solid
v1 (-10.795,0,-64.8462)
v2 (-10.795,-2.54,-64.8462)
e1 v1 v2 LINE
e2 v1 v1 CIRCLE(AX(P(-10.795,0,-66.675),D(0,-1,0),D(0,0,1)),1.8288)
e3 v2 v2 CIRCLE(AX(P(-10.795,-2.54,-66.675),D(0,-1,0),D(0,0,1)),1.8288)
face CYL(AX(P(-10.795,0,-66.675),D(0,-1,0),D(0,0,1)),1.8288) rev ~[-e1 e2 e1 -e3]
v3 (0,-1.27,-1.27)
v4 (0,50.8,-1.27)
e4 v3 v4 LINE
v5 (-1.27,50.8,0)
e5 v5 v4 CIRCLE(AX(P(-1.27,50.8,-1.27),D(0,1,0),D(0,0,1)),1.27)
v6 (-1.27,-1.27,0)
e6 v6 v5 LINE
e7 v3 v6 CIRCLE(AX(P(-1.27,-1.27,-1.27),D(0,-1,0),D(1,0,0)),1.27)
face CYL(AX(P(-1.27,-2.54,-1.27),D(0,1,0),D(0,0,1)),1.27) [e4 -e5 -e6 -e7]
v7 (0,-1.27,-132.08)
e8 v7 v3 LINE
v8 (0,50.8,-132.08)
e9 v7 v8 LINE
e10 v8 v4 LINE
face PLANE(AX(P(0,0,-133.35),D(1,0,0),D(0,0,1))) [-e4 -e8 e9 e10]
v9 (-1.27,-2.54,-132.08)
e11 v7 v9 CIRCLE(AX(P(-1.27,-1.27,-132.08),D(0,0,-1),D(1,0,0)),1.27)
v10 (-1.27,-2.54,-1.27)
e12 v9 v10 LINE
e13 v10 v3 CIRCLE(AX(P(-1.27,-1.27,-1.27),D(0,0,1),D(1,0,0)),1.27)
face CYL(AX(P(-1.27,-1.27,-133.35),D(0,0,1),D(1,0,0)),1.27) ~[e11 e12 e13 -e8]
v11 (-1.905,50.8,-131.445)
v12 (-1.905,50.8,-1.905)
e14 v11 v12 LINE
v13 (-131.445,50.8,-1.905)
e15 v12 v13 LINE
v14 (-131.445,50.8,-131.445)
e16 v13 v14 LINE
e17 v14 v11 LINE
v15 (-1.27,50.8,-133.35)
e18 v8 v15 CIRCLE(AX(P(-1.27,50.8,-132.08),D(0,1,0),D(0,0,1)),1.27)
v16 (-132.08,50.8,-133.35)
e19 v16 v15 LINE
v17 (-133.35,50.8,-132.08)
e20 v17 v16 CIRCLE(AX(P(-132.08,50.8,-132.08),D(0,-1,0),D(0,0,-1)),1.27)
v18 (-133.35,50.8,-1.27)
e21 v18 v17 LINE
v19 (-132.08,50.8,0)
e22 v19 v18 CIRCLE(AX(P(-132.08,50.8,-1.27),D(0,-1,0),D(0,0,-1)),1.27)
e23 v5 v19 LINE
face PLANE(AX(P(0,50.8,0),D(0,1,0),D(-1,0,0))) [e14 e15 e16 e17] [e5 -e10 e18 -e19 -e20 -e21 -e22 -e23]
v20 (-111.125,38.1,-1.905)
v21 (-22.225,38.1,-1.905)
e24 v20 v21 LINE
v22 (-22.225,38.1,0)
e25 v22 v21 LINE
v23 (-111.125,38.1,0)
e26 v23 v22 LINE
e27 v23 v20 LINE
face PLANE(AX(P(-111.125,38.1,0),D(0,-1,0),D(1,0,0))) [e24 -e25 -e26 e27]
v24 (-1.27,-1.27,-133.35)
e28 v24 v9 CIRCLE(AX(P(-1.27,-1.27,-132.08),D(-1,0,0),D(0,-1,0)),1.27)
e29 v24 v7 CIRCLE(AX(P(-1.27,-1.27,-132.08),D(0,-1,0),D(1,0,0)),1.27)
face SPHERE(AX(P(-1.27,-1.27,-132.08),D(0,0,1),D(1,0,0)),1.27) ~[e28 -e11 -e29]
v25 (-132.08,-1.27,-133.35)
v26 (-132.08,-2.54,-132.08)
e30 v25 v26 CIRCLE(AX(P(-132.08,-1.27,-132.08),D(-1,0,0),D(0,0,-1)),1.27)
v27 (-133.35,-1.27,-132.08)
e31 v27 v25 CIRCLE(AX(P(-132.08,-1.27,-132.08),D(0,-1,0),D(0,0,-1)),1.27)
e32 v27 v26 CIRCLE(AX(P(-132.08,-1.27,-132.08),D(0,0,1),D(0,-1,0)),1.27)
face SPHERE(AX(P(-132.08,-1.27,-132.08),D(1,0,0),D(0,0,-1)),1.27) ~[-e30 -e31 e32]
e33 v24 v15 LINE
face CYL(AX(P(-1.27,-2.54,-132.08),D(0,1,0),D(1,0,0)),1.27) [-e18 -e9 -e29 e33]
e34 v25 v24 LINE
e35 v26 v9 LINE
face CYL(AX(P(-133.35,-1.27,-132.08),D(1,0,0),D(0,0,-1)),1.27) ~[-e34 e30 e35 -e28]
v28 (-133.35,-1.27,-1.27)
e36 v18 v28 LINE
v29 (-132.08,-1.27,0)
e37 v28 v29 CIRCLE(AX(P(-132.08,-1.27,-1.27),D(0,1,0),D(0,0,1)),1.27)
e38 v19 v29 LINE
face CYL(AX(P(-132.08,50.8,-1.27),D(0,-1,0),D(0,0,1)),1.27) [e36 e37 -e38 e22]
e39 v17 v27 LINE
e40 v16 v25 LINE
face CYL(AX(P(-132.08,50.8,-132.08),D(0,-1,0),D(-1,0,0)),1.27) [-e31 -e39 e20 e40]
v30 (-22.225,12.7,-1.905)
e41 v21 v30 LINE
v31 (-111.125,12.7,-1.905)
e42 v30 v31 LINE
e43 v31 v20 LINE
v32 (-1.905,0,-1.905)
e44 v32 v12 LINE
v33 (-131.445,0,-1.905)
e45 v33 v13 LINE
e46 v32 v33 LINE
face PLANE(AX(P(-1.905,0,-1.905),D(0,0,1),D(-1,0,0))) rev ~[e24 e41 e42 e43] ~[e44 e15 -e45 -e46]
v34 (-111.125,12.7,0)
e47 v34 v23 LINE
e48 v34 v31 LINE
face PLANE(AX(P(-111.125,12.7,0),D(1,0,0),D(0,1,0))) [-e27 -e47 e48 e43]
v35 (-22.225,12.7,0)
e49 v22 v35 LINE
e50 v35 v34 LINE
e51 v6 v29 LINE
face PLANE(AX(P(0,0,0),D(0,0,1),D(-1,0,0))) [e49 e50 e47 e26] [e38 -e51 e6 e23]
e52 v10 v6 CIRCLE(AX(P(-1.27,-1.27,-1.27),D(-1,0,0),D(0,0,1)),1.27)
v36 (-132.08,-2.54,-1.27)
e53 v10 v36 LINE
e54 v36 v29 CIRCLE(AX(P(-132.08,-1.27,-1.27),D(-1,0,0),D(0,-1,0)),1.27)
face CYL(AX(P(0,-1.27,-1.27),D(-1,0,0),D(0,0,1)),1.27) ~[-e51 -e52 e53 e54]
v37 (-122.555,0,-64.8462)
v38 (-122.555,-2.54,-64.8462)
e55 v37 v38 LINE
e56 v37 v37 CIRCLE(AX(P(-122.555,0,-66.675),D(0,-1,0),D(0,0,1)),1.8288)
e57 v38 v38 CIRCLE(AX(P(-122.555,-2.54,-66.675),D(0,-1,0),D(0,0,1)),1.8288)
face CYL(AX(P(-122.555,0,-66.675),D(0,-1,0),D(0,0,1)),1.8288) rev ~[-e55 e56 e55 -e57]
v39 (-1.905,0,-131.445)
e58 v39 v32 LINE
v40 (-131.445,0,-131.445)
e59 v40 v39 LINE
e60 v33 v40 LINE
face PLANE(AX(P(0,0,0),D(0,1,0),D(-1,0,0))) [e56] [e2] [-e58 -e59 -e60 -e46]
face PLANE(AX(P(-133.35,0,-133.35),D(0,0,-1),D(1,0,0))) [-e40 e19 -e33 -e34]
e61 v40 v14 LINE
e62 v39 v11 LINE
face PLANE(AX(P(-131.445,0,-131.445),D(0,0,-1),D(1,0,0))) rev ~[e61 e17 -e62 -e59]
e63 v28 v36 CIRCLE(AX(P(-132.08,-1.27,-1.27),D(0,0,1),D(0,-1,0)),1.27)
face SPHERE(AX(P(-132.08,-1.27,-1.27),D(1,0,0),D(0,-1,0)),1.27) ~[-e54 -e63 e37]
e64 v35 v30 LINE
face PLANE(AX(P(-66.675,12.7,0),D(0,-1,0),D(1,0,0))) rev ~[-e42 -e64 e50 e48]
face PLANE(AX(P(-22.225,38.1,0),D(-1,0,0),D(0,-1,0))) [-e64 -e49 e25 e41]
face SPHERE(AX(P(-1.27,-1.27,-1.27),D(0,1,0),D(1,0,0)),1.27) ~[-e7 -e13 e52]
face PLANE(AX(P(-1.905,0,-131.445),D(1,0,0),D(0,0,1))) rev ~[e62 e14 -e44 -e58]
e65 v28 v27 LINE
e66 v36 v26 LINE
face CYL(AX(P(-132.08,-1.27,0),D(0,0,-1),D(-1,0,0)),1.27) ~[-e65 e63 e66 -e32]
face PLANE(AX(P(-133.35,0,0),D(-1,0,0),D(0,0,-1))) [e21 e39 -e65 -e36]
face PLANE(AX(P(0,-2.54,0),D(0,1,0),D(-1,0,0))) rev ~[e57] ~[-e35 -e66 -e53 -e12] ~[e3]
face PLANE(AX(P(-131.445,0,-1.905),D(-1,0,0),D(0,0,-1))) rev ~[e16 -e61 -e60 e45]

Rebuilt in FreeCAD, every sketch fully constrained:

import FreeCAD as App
import Part
import Sketcher
from FreeCAD import Vector
Q = App.Units.Quantity


def edges_at(feature, points):
    """Names of the edges that pass closest to the given points."""
    edges = feature.Shape.Edges
    near = lambda p: min(range(len(edges)), key=lambda i: edges[i].distToShape(Part.Vertex(*p))[0])
    return sorted({f"Edge{near(p) + 1}" for p in points})

doc = App.newDocument("Part")
body = doc.addObject("PartDesign::Body", "Body")

sketch1 = body.newObject("Sketcher::SketchObject", "Sketch")
sketch1.AttachmentSupport = (doc.getObject("XZ_Plane"), [""])
sketch1.MapMode = "FlatFace"
sketch1.addGeometry(Part.LineSegment(Vector(-133, 0, 0), Vector(0, 0, 0)), False)
sketch1.addGeometry(Part.LineSegment(Vector(0, 0, 0), Vector(0, -133, 0)), False)
sketch1.addGeometry(Part.LineSegment(Vector(0, -133, 0), Vector(-133, -133, 0)), False)
sketch1.addGeometry(Part.LineSegment(Vector(-133, -133, 0), Vector(-133, 0, 0)), False)
sketch1.addGeometry(Part.LineSegment(Vector(-131, -2, 0), Vector(-131, -131, 0)), False)
sketch1.addGeometry(Part.LineSegment(Vector(-131, -131, 0), Vector(-2, -131, 0)), False)
sketch1.addGeometry(Part.LineSegment(Vector(-2, -131, 0), Vector(-2, -2, 0)), False)
sketch1.addGeometry(Part.LineSegment(Vector(-2, -2, 0), Vector(-131, -2, 0)), False)
sketch1.addConstraint(Sketcher.Constraint("Coincident", 0, 2, 1, 1))
sketch1.addConstraint(Sketcher.Constraint("Coincident", 1, 2, 2, 1))
sketch1.addConstraint(Sketcher.Constraint("Coincident", 2, 2, 3, 1))
sketch1.addConstraint(Sketcher.Constraint("Coincident", 3, 2, 0, 1))
sketch1.addConstraint(Sketcher.Constraint("Coincident", 4, 2, 5, 1))
sketch1.addConstraint(Sketcher.Constraint("Coincident", 5, 2, 6, 1))
sketch1.addConstraint(Sketcher.Constraint("Coincident", 6, 2, 7, 1))
sketch1.addConstraint(Sketcher.Constraint("Coincident", 7, 2, 4, 1))
sketch1.addConstraint(Sketcher.Constraint("Horizontal", 0))
sketch1.addConstraint(Sketcher.Constraint("Vertical", 1))
sketch1.addConstraint(Sketcher.Constraint("Horizontal", 2))
sketch1.addConstraint(Sketcher.Constraint("Vertical", 3))
sketch1.addConstraint(Sketcher.Constraint("Vertical", 4))
sketch1.addConstraint(Sketcher.Constraint("Horizontal", 5))
sketch1.addConstraint(Sketcher.Constraint("Vertical", 6))
sketch1.addConstraint(Sketcher.Constraint("Horizontal", 7))
sketch1.addConstraint(Sketcher.Constraint("Coincident", 0, 2, -1, 1))
sketch1.addConstraint(Sketcher.Constraint("Equal", 2, 1))
sketch1.addConstraint(Sketcher.Constraint("Equal", 7, 4))
sketch1.addConstraint(Sketcher.Constraint("DistanceX", 5, 1, 5, 2, Q("5.1 in")))
sketch1.addConstraint(Sketcher.Constraint("DistanceX", 0, 1, 0, 2, Q("5.25 in")))
sketch1.addConstraint(Sketcher.Constraint("DistanceX", 4, 2, -1, 1, Q("5.175 in")))
sketch1.addConstraint(Sketcher.Constraint("DistanceY", 4, 2, -1, 1, Q("5.175 in")))
pad1 = body.newObject("PartDesign::Pad", "Pad")
pad1.Profile = sketch1
pad1.Length = Q("2 in")
pad1.Reversed = True

sketch2 = body.newObject("Sketcher::SketchObject", "Sketch001")
sketch2.AttachmentSupport = (doc.getObject("XZ_Plane"), [""])
sketch2.MapMode = "FlatFace"
sketch2.addGeometry(Part.LineSegment(Vector(-133, 0, 0), Vector(0, 0, 0)), False)
sketch2.addGeometry(Part.LineSegment(Vector(0, 0, 0), Vector(0, -133, 0)), False)
sketch2.addGeometry(Part.LineSegment(Vector(0, -133, 0), Vector(-133, -133, 0)), False)
sketch2.addGeometry(Part.LineSegment(Vector(-133, -133, 0), Vector(-133, 0, 0)), False)
sketch2.addConstraint(Sketcher.Constraint("Coincident", 0, 2, 1, 1))
sketch2.addConstraint(Sketcher.Constraint("Coincident", 1, 2, 2, 1))
sketch2.addConstraint(Sketcher.Constraint("Coincident", 2, 2, 3, 1))
sketch2.addConstraint(Sketcher.Constraint("Coincident", 3, 2, 0, 1))
sketch2.addConstraint(Sketcher.Constraint("Horizontal", 0))
sketch2.addConstraint(Sketcher.Constraint("Vertical", 1))
sketch2.addConstraint(Sketcher.Constraint("Horizontal", 2))
sketch2.addConstraint(Sketcher.Constraint("Vertical", 3))
sketch2.addConstraint(Sketcher.Constraint("Coincident", 0, 2, -1, 1))
sketch2.addConstraint(Sketcher.Constraint("Equal", 2, 1))
sketch2.addConstraint(Sketcher.Constraint("DistanceX", 0, 1, 0, 2, Q("5.25 in")))
pad2 = body.newObject("PartDesign::Pad", "Pad001")
pad2.Profile = sketch2
pad2.Length = Q("0.1 in")
doc.recompute()

fillet = body.newObject("PartDesign::Fillet", "Fillet")
fillet.Base = (pad2, edges_at(pad2, [
    (0, 24.13, 0),
    (0, -2.54, -66.675),
    (-66.675, -2.54, 0),
    (0, 24.13, -133.35),
    (-66.675, -2.54, -133.35),
    (-133.35, 24.13, -133.35),
    (-133.35, -2.54, -66.675),
    (-133.35, 24.13, 0),
]))
fillet.Radius = Q("0.05 in")

sketch3 = body.newObject("Sketcher::SketchObject", "Sketch002")
sketch3.AttachmentSupport = (doc.getObject("XZ_Plane"), [""])
sketch3.MapMode = "FlatFace"
sketch3.addGeometry(Part.Circle(Vector(-10.8, -66.7, 0), Vector(0, 0, 1), 1.8), False)
sketch3.addGeometry(Part.Circle(Vector(-122.6, -66.7, 0), Vector(0, 0, 1), 1.8), False)
sketch3.addConstraint(Sketcher.Constraint("Equal", 0, 1))
sketch3.addConstraint(Sketcher.Constraint("Horizontal", 0, 3, 1, 3))
sketch3.addConstraint(Sketcher.Constraint("Diameter", 0, Q("0.144 in")))
sketch3.addConstraint(Sketcher.Constraint("DistanceX", 1, 3, 0, 3, Q("4.4 in")))
sketch3.addConstraint(Sketcher.Constraint("DistanceX", 0, 3, -1, 1, Q("0.425 in")))
sketch3.addConstraint(Sketcher.Constraint("DistanceY", 0, 3, -1, 1, Q("2.625 in")))
doc.recompute()
hole = body.newObject("PartDesign::Hole", "Hole")
hole.Profile = sketch3
hole.ThreadType = "None"
hole.Diameter = Q("0.144 in")
hole.DepthType = "ThroughAll"
hole.Reversed = True

sketch4 = body.newObject("Sketcher::SketchObject", "Sketch003")
sketch4.AttachmentSupport = (doc.getObject("XY_Plane"), [""])
sketch4.MapMode = "FlatFace"
sketch4.addGeometry(Part.LineSegment(Vector(-111, 13, 0), Vector(-22, 13, 0)), False)
sketch4.addGeometry(Part.LineSegment(Vector(-22, 13, 0), Vector(-22, 38, 0)), False)
sketch4.addGeometry(Part.LineSegment(Vector(-22, 38, 0), Vector(-111, 38, 0)), False)
sketch4.addGeometry(Part.LineSegment(Vector(-111, 38, 0), Vector(-111, 13, 0)), False)
sketch4.addConstraint(Sketcher.Constraint("Coincident", 0, 2, 1, 1))
sketch4.addConstraint(Sketcher.Constraint("Coincident", 1, 2, 2, 1))
sketch4.addConstraint(Sketcher.Constraint("Coincident", 2, 2, 3, 1))
sketch4.addConstraint(Sketcher.Constraint("Coincident", 3, 2, 0, 1))
sketch4.addConstraint(Sketcher.Constraint("Horizontal", 0))
sketch4.addConstraint(Sketcher.Constraint("Vertical", 1))
sketch4.addConstraint(Sketcher.Constraint("Horizontal", 2))
sketch4.addConstraint(Sketcher.Constraint("Vertical", 3))
sketch4.addConstraint(Sketcher.Constraint("DistanceY", 1, 1, 1, 2, Q("1 in")))
sketch4.addConstraint(Sketcher.Constraint("DistanceX", 0, 1, 0, 2, Q("3.5 in")))
sketch4.addConstraint(Sketcher.Constraint("DistanceY", -1, 1, 0, 2, Q("0.5 in")))
sketch4.addConstraint(Sketcher.Constraint("DistanceX", 0, 2, -1, 1, Q("0.875 in")))
pocket1 = body.newObject("PartDesign::Pocket", "Pocket")
pocket1.Profile = sketch4
pocket1.Length = Q("0.1 in")

doc.recompute()
